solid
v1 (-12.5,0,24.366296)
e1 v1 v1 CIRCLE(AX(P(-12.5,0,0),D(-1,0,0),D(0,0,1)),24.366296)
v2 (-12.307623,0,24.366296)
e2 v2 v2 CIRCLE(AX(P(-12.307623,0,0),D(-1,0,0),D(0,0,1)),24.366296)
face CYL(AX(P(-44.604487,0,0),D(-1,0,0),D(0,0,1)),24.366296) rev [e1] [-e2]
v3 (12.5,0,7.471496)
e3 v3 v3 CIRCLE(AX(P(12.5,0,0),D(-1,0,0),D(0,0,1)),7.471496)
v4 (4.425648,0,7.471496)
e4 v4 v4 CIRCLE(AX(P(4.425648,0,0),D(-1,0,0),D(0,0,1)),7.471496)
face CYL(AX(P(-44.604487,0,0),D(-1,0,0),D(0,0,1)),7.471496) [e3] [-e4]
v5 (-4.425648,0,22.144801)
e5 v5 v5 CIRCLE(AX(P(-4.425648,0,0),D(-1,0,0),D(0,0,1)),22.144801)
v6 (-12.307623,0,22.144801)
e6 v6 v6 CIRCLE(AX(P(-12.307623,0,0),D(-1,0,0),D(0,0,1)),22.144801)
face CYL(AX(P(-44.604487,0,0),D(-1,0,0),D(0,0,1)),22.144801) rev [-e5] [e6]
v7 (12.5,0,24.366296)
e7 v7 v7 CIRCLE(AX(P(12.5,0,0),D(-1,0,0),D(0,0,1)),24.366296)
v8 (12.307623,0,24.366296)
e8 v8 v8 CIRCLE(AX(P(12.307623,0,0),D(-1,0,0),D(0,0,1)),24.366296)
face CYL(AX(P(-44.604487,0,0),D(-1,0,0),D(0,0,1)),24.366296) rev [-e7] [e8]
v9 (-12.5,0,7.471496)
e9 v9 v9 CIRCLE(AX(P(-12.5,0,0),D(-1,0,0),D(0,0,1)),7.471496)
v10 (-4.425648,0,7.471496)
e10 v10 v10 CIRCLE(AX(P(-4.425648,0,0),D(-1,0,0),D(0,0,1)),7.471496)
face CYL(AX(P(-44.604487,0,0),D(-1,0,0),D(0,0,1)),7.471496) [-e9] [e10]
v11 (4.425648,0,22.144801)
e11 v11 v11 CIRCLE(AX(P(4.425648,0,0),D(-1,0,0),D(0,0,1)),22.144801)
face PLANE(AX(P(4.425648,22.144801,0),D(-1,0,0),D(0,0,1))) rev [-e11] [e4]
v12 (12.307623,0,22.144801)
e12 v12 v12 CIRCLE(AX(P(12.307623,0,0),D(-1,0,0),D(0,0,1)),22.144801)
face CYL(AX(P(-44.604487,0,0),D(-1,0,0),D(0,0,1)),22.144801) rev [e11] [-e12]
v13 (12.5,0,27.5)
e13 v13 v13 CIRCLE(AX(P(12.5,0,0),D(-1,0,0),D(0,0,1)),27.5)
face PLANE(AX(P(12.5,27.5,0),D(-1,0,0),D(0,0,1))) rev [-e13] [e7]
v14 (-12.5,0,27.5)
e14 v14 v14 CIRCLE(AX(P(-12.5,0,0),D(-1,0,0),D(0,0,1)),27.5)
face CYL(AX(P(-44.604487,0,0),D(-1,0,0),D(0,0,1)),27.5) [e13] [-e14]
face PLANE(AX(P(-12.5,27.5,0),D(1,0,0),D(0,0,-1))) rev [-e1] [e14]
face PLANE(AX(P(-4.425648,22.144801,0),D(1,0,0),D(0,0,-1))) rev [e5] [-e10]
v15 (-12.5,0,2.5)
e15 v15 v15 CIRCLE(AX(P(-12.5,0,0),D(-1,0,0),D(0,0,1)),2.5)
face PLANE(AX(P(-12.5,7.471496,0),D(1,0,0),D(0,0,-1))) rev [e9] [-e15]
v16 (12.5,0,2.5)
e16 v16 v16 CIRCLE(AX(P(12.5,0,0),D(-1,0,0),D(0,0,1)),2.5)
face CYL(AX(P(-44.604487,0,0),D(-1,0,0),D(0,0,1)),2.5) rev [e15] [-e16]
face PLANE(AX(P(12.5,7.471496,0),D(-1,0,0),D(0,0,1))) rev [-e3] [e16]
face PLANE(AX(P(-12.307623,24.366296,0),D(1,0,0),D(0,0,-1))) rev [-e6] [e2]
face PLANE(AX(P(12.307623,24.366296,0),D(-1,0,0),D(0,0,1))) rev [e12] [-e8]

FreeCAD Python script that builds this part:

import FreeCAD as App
import Part
import Sketcher
from FreeCAD import Vector


def add_polygon(sketch, points):
    """Adds a closed chain of lines whose ends are joined by coincident constraints."""
    first, n = sketch.GeometryCount, len(points)
    for a, b in zip(points, points[1:] + points[:1]):
        sketch.addGeometry(Part.LineSegment(App.Vector(*a, 0), App.Vector(*b, 0)), False)
    for i in range(n):
        sketch.addConstraint(Sketcher.Constraint("Coincident", first + i, 2, first + (i + 1) % n, 1))

doc = App.newDocument("Part")
body = doc.addObject("PartDesign::Body", "Body")

sketch1 = body.newObject("Sketcher::SketchObject", "Sketch")
sketch1.AttachmentSupport = (doc.getObject("XY_Plane"), [""])
sketch1.MapMode = "FlatFace"
add_polygon(sketch1, [(12.5, 27.5), (-12.5, 27.5), (-12.5, 24.37), (-12.31, 24.37), (-12.31, 22.14), (-4.43, 22.14), (-4.43, 7.47), (-12.5, 7.47), (-12.5, 2.5), (12.5, 2.5), (12.5, 7.47), (4.43, 7.47), (4.43, 22.14), (12.31, 22.14), (12.31, 24.37), (12.5, 24.37)])
sketch1.addConstraint(Sketcher.Constraint("Horizontal", 0))
sketch1.addConstraint(Sketcher.Constraint("Vertical", 1))
sketch1.addConstraint(Sketcher.Constraint("Horizontal", 2))
sketch1.addConstraint(Sketcher.Constraint("Vertical", 3))
sketch1.addConstraint(Sketcher.Constraint("Horizontal", 4))
sketch1.addConstraint(Sketcher.Constraint("Vertical", 5))
sketch1.addConstraint(Sketcher.Constraint("Horizontal", 6))
sketch1.addConstraint(Sketcher.Constraint("Vertical", 7))
sketch1.addConstraint(Sketcher.Constraint("Horizontal", 8))
sketch1.addConstraint(Sketcher.Constraint("Vertical", 9))
sketch1.addConstraint(Sketcher.Constraint("Horizontal", 10))
sketch1.addConstraint(Sketcher.Constraint("Vertical", 11))
sketch1.addConstraint(Sketcher.Constraint("Horizontal", 12))
sketch1.addConstraint(Sketcher.Constraint("Vertical", 13))
sketch1.addConstraint(Sketcher.Constraint("Horizontal", 14))
sketch1.addConstraint(Sketcher.Constraint("Vertical", 15))
sketch1.addConstraint(Sketcher.Constraint("Symmetric", 6, 2, 9, 2, -2))
sketch1.addConstraint(Sketcher.Constraint("Symmetric", 4, 2, 11, 2, -2))
sketch1.addConstraint(Sketcher.Constraint("Symmetric", 2, 2, 13, 2, -2))
sketch1.addConstraint(Sketcher.Constraint("Vertical", 1, 2, 6, 2))
sketch1.addConstraint(Sketcher.Constraint("Vertical", 9, 2, 14, 2))
sketch1.addConstraint(Sketcher.Constraint("DistanceX", 0, 2, 0, 1, 25.0))
sketch1.addConstraint(Sketcher.Constraint("DistanceY", -1, 1, 0, 2, 27.5))
sketch1.addConstraint(Sketcher.Constraint("DistanceY", -1, 1, 7, 2, 2.5))
sketch1.addConstraint(Sketcher.Constraint("DistanceX", 6, 2, 6, 1, 8.074352))
sketch1.addConstraint(Sketcher.Constraint("DistanceY", -1, 1, 3, 2, 22.144801))
sketch1.addConstraint(Sketcher.Constraint("DistanceY", 5, 2, 2, 2, 16.8948))
sketch1.addConstraint(Sketcher.Constraint("DistanceX", 2, 1, 2, 2, 0.192377))
sketch1.addConstraint(Sketcher.Constraint("DistanceY", 1, 2, 1, 1, 3.133704))
revolution = body.newObject("PartDesign::Revolution", "Revolution")
revolution.Profile = sketch1
revolution.ReferenceAxis = (sketch1, ["H_Axis"])
revolution.Angle = 360

doc.recompute()
